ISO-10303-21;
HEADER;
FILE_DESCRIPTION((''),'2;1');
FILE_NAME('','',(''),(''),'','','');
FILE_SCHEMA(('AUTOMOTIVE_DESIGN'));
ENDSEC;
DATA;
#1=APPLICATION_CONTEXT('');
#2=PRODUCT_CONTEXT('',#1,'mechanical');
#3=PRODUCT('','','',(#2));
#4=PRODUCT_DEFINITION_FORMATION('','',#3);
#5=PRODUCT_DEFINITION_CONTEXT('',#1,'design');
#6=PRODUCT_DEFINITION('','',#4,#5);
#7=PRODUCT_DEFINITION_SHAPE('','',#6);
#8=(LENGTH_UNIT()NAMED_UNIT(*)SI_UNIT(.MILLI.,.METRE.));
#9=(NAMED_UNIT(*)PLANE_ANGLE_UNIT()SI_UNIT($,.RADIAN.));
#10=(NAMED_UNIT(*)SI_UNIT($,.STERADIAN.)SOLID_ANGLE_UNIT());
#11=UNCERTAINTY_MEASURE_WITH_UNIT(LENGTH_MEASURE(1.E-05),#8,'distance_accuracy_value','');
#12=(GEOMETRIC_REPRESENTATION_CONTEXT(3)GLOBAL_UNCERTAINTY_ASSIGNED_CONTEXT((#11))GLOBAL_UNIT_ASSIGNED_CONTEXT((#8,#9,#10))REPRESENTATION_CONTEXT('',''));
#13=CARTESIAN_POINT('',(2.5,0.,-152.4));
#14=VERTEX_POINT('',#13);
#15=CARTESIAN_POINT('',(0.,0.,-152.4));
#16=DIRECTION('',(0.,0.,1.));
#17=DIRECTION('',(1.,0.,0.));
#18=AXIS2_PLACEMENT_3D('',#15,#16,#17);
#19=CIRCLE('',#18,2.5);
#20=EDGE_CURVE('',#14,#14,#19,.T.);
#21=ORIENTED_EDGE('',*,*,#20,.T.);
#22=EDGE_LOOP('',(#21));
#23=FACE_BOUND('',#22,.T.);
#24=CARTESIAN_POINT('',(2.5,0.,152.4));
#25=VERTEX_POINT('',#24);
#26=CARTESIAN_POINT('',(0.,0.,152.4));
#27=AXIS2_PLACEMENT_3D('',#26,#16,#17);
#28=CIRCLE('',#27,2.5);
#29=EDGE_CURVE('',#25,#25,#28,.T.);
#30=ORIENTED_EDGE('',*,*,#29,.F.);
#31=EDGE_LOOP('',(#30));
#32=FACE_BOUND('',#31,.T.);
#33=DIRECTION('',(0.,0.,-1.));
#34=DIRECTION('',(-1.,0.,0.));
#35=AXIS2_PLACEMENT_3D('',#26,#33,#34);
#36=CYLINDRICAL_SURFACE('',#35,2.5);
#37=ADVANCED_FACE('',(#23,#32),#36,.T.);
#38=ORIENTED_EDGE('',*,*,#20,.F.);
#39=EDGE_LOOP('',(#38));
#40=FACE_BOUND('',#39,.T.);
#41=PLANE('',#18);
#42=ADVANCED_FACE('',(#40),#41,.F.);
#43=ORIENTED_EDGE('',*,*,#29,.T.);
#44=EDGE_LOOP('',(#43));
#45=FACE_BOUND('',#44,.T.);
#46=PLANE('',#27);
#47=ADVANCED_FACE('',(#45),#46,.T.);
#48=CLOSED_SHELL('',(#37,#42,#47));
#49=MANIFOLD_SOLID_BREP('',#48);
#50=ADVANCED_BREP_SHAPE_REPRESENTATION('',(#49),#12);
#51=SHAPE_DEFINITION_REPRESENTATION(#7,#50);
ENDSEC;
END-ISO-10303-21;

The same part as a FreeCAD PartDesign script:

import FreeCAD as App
import Part
import Sketcher
from FreeCAD import Vector

doc = App.newDocument("Part")
body = doc.addObject("PartDesign::Body", "Body")

# Sketch on XY plane
sketch1 = body.newObject("Sketcher::SketchObject", "Sketch")
sketch1.AttachmentSupport = (doc.getObject("XY_Plane"), [""])
sketch1.MapMode = "FlatFace"
sketch1.addGeometry(Part.Circle(Vector(0, 0, 0), Vector(0, 0, 1), 2.5), False)
sketch1.addConstraint(Sketcher.Constraint("Coincident", 0, 3, -1, 1))
sketch1.addConstraint(Sketcher.Constraint("Diameter", 0, 5.0))
pad1 = body.newObject("PartDesign::Pad", "Pad")
pad1.Profile = sketch1
pad1.Type = "TwoLengths"
pad1.Length = 152.4
pad1.Length2 = 152.4

doc.recompute()
